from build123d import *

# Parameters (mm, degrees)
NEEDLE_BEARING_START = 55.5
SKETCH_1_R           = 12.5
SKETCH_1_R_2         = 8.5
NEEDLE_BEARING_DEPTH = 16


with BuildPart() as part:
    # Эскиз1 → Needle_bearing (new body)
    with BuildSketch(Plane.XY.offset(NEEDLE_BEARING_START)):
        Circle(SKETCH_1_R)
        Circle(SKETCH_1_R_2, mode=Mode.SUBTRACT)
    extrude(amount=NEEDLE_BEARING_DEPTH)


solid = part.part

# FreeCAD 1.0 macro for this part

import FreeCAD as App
import Part
import Sketcher

doc = App.newDocument("Part")
body = doc.addObject("PartDesign::Body", "Body")

# Sketch on XY plane
sketch1 = doc.addObject("Sketcher::SketchObject", "Sketch")
body.addObject(sketch1)
sketch1.AttachmentSupport = (doc.XY_Plane, [""])
sketch1.MapMode = "FlatFace"
sketch1.AttachmentOffset = App.Placement(App.Vector(0, 0, 55.5), App.Rotation())
sketch1.addGeometry([
    Part.Circle(App.Vector(0, 0, 0), App.Vector(0, 0, 1), 12),
    Part.Circle(App.Vector(0, 0, 0), App.Vector(0, 0, 1), 8),
], False)
sketch1.addConstraint([
    Sketcher.Constraint("Coincident", 0, 3, -1, 1),
    Sketcher.Constraint("Coincident", 1, 3, -1, 1),
    Sketcher.Constraint("Diameter", 0, 25.0),
    Sketcher.Constraint("Diameter", 1, 17.0),
])
pad1 = doc.addObject("PartDesign::Pad", "Pad")
body.addObject(pad1)
pad1.Profile = sketch1
pad1.Length = 16

doc.recompute()
